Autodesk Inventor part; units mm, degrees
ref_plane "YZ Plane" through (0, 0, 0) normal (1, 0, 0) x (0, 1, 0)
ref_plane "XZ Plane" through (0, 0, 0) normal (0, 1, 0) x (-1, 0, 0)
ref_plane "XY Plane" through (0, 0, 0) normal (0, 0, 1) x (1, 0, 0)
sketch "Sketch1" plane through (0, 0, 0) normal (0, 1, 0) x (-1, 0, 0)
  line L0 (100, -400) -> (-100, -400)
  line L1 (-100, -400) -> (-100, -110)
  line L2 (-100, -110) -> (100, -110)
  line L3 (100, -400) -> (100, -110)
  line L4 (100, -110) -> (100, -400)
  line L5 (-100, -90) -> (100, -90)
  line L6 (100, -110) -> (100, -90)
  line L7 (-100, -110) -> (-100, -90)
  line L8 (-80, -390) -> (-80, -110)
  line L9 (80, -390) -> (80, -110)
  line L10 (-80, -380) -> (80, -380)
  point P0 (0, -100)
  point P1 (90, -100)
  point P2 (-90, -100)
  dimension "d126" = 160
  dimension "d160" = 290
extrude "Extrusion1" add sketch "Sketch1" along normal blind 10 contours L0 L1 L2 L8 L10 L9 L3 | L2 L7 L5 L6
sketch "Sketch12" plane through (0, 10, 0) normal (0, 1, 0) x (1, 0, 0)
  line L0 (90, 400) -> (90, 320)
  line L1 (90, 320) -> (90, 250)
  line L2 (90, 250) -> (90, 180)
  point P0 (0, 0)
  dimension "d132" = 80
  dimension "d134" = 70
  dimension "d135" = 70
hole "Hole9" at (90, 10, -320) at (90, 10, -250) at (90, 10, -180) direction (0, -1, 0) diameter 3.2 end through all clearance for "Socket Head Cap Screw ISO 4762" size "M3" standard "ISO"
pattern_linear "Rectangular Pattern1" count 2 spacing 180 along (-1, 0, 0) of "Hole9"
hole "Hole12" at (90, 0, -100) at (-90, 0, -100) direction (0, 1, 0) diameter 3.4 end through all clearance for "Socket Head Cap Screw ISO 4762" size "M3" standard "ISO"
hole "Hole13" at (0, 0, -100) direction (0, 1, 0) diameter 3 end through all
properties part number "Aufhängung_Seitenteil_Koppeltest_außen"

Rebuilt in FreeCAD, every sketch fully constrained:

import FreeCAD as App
import Part
import Sketcher

V = App.Vector


def add_polygon(sketch, points):
    """Adds a closed chain of lines whose ends are joined by coincident constraints."""
    first, n = sketch.GeometryCount, len(points)
    for a, b in zip(points, points[1:] + points[:1]):
        sketch.addGeometry(Part.LineSegment(App.Vector(*a, 0), App.Vector(*b, 0)), False)
    for i in range(n):
        sketch.addConstraint(Sketcher.Constraint("Coincident", first + i, 2, first + (i + 1) % n, 1))

doc = App.newDocument("Part")
body = doc.addObject("PartDesign::Body", "Body")

# Sketch on XZ plane
sketch1 = doc.addObject("Sketcher::SketchObject", "Sketch")
body.addObject(sketch1)
sketch1.AttachmentSupport = (doc.XZ_Plane, [""])
sketch1.MapMode = "FlatFace"
add_polygon(sketch1, [(100, -400), (-100, -400), (-100, -90), (100, -90)])  # lines 0-3
add_polygon(sketch1, [(80, -380), (80, -110), (-80, -110), (-80, -380)])  # lines 4-7
sketch1.addConstraint(Sketcher.Constraint("Horizontal", 0))
sketch1.addConstraint(Sketcher.Constraint("Vertical", 1))
sketch1.addConstraint(Sketcher.Constraint("Horizontal", 2))
sketch1.addConstraint(Sketcher.Constraint("Vertical", 3))
sketch1.addConstraint(Sketcher.Constraint("Vertical", 4))
sketch1.addConstraint(Sketcher.Constraint("Horizontal", 5))
sketch1.addConstraint(Sketcher.Constraint("Vertical", 6))
sketch1.addConstraint(Sketcher.Constraint("Horizontal", 7))
sketch1.addConstraint(Sketcher.Constraint("DistanceX", 5, 2, 5, 1, 160.0))
sketch1.addConstraint(Sketcher.Constraint("DistanceY", 3, 2, 4, 2, 290.0))
sketch1.addConstraint(Sketcher.Constraint("DistanceY", 6, 2, 1, 2, 290.0))
sketch1.addConstraint(Sketcher.Constraint("DistanceX", 0, 2, 0, 1, 200.0))
sketch1.addConstraint(Sketcher.Constraint("DistanceY", 1, 1, 1, 2, 310.0))
sketch1.addConstraint(Sketcher.Constraint("DistanceX", 0, 2, -1, 1, 100.0))
sketch1.addConstraint(Sketcher.Constraint("DistanceY", 0, 2, -1, 1, 400.0))
sketch1.addConstraint(Sketcher.Constraint("DistanceX", -1, 1, 4, 2, 80.0))
pad1 = doc.addObject("PartDesign::Pad", "Pad")
body.addObject(pad1)
pad1.Profile = sketch1
pad1.Length = 10
pad1.Reversed = True

# Sketch on XZ plane
sketch2 = doc.addObject("Sketcher::SketchObject", "Sketch001")
body.addObject(sketch2)
sketch2.AttachmentSupport = (doc.XZ_Plane, [""])
sketch2.MapMode = "FlatFace"
sketch2.AttachmentOffset = App.Placement(V(0, 0, -10), App.Rotation())
sketch2.addGeometry(Part.Circle(V(90, -320, 0), V(0, 0, 1), 1.6), False)
sketch2.addGeometry(Part.Circle(V(90, -250, 0), V(0, 0, 1), 1.6), False)
sketch2.addGeometry(Part.Circle(V(90, -180, 0), V(0, 0, 1), 1.6), False)
sketch2.addConstraint(Sketcher.Constraint("Equal", 0, 1))
sketch2.addConstraint(Sketcher.Constraint("Equal", 1, 2))
sketch2.addConstraint(Sketcher.Constraint("Vertical", 0, 3, 1, 3))
sketch2.addConstraint(Sketcher.Constraint("Vertical", 1, 3, 2, 3))
sketch2.addConstraint(Sketcher.Constraint("Diameter", 0, 3.2))
sketch2.addConstraint(Sketcher.Constraint("DistanceX", -1, 1, 0, 3, 90.0))
sketch2.addConstraint(Sketcher.Constraint("DistanceY", 0, 3, -1, 1, 320.0))
sketch2.addConstraint(Sketcher.Constraint("DistanceY", 1, 3, -1, 1, 250.0))
sketch2.addConstraint(Sketcher.Constraint("DistanceY", 2, 3, -1, 1, 180.0))
doc.recompute()
hole = doc.addObject("PartDesign::Hole", "Hole")
body.addObject(hole)
hole.Profile = sketch2
hole.ThreadType = "None"
hole.Diameter = 3.2
hole.DepthType = "ThroughAll"
hole.Reversed = True
doc.recompute()

linearpattern = doc.addObject("PartDesign::LinearPattern", "LinearPattern")
body.addObject(linearpattern)
linearpattern.Originals = [hole]
linearpattern.Direction = (doc.X_Axis, [""])
linearpattern.Mode = "offset"
linearpattern.Offset = 180
linearpattern.Occurrences = 2
linearpattern.Reversed = True
body.Tip = linearpattern

# Sketch on XZ plane
sketch3 = doc.addObject("Sketcher::SketchObject", "Sketch002")
body.addObject(sketch3)
sketch3.AttachmentSupport = (doc.XZ_Plane, [""])
sketch3.MapMode = "FlatFace"
sketch3.addGeometry(Part.Circle(V(90, -100, 0), V(0, 0, 1), 1.7), False)
sketch3.addGeometry(Part.Circle(V(-90, -100, 0), V(0, 0, 1), 1.7), False)
sketch3.addConstraint(Sketcher.Constraint("Equal", 0, 1))
sketch3.addConstraint(Sketcher.Constraint("Symmetric", 0, 3, 1, 3, -2))
sketch3.addConstraint(Sketcher.Constraint("Diameter", 0, 3.4))
sketch3.addConstraint(Sketcher.Constraint("DistanceX", -1, 1, 0, 3, 90.0))
sketch3.addConstraint(Sketcher.Constraint("DistanceY", 0, 3, -1, 1, 100.0))
doc.recompute()
hole2 = doc.addObject("PartDesign::Hole", "Hole001")
body.addObject(hole2)
hole2.Profile = sketch3
hole2.ThreadType = "None"
hole2.Diameter = 3.4
hole2.DepthType = "ThroughAll"

# Sketch on XZ plane
sketch4 = doc.addObject("Sketcher::SketchObject", "Sketch003")
body.addObject(sketch4)
sketch4.AttachmentSupport = (doc.XZ_Plane, [""])
sketch4.MapMode = "FlatFace"
sketch4.addGeometry(Part.Circle(V(0, -100, 0), V(0, 0, 1), 1.5), False)
sketch4.addConstraint(Sketcher.Constraint("PointOnObject", 0, 3, -2))
sketch4.addConstraint(Sketcher.Constraint("Diameter", 0, 3.0))
sketch4.addConstraint(Sketcher.Constraint("DistanceY", 0, 3, -1, 1, 100.0))
doc.recompute()
hole3 = doc.addObject("PartDesign::Hole", "Hole002")
body.addObject(hole3)
hole3.Profile = sketch4
hole3.ThreadType = "None"
hole3.Diameter = 3
hole3.DepthType = "ThroughAll"

doc.recompute()
